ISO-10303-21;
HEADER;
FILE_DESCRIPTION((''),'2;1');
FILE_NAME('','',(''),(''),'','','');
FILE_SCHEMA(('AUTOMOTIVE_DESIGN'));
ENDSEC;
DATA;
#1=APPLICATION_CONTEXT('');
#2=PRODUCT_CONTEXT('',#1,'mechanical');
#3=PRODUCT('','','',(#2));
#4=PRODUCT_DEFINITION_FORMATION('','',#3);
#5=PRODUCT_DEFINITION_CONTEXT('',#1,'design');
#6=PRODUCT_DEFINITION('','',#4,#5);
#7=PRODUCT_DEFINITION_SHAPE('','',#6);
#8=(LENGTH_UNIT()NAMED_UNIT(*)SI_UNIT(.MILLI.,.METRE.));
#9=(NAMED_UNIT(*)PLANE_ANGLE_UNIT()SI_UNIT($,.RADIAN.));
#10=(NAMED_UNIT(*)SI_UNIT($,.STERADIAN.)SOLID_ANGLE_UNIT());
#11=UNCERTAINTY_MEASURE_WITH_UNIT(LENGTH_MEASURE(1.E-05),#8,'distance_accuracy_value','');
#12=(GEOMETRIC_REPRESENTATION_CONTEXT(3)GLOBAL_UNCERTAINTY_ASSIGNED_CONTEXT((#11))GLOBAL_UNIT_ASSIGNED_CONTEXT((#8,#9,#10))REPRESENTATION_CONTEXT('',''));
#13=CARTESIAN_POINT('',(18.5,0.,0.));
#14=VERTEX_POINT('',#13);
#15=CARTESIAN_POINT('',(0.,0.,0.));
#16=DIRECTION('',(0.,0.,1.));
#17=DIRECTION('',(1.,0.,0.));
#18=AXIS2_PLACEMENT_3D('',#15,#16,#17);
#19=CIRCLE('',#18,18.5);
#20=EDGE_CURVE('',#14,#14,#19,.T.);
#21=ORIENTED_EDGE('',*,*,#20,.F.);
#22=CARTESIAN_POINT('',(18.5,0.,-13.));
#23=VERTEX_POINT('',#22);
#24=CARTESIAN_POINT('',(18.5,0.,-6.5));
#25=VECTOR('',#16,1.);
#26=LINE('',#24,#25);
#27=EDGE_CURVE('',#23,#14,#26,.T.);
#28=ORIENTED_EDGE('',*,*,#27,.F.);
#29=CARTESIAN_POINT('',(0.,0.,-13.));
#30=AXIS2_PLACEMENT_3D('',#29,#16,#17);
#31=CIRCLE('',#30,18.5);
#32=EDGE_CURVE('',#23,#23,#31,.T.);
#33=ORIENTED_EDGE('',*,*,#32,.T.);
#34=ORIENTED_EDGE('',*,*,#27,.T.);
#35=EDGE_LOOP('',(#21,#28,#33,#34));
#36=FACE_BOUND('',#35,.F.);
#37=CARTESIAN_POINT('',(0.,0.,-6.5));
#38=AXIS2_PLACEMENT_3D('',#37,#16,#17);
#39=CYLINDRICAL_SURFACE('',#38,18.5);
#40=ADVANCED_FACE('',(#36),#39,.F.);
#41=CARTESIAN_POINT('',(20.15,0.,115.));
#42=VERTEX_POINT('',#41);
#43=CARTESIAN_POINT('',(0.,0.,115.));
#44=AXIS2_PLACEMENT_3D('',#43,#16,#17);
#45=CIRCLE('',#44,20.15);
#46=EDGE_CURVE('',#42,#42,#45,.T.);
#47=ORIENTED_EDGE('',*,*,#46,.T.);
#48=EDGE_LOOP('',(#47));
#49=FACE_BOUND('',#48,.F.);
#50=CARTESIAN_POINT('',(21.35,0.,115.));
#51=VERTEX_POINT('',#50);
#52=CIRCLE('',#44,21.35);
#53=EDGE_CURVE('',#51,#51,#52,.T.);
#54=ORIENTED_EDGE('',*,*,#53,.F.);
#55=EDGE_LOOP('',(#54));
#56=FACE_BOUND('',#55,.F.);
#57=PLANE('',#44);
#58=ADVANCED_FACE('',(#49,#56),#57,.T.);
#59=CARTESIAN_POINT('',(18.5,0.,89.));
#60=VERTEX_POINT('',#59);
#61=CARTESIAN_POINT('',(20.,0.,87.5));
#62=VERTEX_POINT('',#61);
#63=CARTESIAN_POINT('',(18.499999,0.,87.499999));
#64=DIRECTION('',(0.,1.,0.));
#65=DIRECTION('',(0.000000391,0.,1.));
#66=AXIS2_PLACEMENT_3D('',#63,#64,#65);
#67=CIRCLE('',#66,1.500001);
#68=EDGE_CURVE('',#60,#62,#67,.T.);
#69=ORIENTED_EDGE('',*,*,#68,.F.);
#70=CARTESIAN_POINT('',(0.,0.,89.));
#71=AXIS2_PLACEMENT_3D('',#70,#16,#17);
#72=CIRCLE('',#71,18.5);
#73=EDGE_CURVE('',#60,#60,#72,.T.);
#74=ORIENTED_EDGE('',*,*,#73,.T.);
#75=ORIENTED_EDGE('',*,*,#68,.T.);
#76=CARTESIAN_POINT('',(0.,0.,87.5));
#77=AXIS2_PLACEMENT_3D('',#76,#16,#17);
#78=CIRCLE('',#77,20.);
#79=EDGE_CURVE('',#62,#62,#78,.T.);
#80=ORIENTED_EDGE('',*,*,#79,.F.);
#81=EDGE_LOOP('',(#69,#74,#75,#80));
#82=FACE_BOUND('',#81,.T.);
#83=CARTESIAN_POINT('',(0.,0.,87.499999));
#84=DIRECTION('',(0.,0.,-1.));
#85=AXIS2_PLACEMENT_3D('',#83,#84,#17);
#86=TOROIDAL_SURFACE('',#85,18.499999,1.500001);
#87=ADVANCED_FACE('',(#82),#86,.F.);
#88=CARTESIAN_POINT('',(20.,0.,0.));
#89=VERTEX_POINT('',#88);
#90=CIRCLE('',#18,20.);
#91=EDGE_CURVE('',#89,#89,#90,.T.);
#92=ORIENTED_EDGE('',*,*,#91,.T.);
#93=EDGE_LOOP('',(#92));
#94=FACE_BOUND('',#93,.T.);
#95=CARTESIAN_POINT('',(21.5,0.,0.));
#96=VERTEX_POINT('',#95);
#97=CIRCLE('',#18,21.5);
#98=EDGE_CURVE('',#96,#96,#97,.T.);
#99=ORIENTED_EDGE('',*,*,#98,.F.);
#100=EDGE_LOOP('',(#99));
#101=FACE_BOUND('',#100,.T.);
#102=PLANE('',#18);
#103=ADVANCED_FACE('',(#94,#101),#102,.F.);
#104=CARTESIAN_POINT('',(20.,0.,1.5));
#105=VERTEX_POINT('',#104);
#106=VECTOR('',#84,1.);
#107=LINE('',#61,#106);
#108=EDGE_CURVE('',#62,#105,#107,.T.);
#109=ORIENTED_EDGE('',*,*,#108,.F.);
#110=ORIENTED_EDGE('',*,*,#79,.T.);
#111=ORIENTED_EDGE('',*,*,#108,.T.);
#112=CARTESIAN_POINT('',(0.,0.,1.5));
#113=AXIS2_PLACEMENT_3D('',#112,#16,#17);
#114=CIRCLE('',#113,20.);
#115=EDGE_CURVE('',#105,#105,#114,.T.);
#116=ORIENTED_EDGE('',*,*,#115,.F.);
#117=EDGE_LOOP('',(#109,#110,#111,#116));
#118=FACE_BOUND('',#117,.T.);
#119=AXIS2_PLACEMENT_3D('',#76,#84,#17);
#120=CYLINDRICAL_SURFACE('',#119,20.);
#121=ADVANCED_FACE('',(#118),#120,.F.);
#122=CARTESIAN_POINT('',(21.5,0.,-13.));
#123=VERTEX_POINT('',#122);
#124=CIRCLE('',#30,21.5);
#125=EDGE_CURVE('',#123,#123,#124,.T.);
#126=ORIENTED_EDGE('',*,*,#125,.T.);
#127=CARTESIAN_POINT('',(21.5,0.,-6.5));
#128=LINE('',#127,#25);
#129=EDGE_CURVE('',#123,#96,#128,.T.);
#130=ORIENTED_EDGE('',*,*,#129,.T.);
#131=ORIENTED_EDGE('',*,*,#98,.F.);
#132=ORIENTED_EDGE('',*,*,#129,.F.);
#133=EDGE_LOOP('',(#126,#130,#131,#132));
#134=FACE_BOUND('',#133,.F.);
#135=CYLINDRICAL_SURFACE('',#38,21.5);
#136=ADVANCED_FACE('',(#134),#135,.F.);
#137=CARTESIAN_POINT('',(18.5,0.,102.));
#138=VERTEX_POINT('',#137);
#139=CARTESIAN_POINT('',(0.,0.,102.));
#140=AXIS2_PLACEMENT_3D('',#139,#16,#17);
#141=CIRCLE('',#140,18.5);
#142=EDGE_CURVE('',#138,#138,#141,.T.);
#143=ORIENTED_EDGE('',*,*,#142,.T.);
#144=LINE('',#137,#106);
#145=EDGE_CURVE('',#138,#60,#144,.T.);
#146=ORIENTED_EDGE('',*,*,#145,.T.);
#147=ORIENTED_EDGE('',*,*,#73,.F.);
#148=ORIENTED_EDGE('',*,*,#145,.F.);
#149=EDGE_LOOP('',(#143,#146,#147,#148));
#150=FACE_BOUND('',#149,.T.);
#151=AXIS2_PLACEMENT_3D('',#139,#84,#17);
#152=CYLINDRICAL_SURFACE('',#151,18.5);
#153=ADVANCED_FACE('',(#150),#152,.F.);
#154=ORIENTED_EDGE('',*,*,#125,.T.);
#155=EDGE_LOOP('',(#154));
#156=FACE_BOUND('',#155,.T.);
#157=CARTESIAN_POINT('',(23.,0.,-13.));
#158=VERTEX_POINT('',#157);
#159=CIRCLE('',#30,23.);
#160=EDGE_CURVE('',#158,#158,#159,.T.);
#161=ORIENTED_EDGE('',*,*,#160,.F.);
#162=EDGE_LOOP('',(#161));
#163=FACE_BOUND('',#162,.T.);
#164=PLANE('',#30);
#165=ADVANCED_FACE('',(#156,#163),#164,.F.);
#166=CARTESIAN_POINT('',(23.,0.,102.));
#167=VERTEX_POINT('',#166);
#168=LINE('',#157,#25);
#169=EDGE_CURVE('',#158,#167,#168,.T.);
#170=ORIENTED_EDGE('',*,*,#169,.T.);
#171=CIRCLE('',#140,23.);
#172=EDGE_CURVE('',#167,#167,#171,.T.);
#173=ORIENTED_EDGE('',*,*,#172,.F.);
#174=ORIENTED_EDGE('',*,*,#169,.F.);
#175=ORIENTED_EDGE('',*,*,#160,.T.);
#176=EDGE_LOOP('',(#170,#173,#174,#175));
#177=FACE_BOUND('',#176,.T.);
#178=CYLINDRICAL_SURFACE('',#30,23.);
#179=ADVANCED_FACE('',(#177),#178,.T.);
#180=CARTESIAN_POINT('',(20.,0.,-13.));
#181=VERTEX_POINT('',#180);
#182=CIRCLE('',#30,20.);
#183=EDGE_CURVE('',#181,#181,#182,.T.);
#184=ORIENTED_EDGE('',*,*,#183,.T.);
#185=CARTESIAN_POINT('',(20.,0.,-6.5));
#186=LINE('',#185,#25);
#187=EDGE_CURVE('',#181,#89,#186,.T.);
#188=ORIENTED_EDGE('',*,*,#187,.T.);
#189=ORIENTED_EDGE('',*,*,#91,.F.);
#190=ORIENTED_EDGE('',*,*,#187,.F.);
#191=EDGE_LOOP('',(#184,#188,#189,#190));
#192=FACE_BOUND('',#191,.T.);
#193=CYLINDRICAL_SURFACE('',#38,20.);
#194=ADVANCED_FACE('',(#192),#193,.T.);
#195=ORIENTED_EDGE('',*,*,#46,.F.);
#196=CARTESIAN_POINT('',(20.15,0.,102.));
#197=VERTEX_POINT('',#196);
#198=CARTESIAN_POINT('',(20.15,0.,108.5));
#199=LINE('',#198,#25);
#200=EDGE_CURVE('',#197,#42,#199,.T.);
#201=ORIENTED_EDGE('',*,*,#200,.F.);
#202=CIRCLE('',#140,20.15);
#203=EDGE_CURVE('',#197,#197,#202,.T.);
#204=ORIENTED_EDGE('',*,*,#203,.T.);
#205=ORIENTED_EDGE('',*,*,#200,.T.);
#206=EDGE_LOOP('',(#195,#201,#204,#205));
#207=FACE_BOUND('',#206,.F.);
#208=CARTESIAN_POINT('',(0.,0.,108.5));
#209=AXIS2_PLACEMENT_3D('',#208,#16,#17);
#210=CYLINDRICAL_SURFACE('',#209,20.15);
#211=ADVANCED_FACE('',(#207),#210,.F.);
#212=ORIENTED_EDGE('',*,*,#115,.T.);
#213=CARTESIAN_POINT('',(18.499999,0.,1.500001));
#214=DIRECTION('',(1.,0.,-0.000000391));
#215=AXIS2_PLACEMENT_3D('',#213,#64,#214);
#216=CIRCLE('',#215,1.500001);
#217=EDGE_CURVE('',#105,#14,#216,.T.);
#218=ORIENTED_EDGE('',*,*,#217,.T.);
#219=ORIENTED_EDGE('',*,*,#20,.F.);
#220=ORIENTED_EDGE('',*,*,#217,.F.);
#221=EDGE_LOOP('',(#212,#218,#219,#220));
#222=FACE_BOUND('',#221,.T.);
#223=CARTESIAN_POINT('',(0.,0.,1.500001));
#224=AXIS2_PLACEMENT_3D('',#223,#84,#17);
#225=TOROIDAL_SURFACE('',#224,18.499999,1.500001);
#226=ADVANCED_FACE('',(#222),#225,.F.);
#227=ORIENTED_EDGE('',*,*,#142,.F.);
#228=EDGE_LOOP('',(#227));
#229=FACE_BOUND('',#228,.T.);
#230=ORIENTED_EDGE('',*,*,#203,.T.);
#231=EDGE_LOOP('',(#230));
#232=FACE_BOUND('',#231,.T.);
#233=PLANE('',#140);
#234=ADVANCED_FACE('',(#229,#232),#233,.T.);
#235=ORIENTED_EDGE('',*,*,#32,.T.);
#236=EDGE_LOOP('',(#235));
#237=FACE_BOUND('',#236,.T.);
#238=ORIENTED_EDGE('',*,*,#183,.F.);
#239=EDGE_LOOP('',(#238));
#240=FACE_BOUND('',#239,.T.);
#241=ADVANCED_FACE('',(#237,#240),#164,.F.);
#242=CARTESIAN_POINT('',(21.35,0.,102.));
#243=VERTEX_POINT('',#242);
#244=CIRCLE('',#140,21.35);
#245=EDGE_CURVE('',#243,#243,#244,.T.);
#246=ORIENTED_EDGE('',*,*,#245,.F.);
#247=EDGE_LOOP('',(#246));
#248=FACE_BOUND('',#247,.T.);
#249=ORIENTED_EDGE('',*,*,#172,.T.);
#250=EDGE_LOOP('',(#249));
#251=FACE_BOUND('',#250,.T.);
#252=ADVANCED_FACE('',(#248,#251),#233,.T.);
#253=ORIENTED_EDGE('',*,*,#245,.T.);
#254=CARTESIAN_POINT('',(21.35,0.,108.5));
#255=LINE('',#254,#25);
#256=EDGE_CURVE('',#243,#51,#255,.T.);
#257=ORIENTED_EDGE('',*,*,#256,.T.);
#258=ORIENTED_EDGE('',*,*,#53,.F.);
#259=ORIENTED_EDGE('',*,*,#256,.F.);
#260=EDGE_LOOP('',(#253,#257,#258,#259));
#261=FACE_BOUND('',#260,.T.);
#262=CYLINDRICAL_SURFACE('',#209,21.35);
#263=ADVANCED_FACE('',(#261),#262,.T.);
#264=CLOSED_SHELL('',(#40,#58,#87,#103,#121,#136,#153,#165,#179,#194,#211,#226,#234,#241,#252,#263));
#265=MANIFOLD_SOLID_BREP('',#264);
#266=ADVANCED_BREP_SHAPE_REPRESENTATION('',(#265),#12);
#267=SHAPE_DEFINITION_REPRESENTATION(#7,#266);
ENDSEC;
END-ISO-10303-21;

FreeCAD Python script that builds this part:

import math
import FreeCAD as App
import Part
import Sketcher
from FreeCAD import Vector
Q = App.Units.Quantity

doc = App.newDocument("Part")
body = doc.addObject("PartDesign::Body", "Body")

sketch1 = body.newObject("Sketcher::SketchObject", "Sketch")
sketch1.AttachmentSupport = (doc.getObject("XZ_Plane"), [""])
sketch1.MapMode = "FlatFace"
sketch1.addGeometry([
    Part.LineSegment(Vector(20, 87.5, 0), Vector(20, 1.5, 0)),
    Part.ArcOfCircle(Part.Circle(Vector(18.5, 1.5, 0), Vector(0, 0, 1), 1.5), math.radians(-90), math.radians(0)),
    Part.LineSegment(Vector(18.5, 0, 0), Vector(18.5, -13, 0)),
    Part.LineSegment(Vector(18.5, -13, 0), Vector(20, -13, 0)),
    Part.LineSegment(Vector(20, -13, 0), Vector(20, 0, 0)),
    Part.LineSegment(Vector(20, 0, 0), Vector(21.5, 0, 0)),
    Part.LineSegment(Vector(21.5, 0, 0), Vector(21.5, -13, 0)),
    Part.LineSegment(Vector(21.5, -13, 0), Vector(23, -13, 0)),
    Part.LineSegment(Vector(23, -13, 0), Vector(23, 102, 0)),
    Part.LineSegment(Vector(23, 102, 0), Vector(21.4, 102, 0)),
    Part.LineSegment(Vector(21.4, 102, 0), Vector(21.4, 115, 0)),
    Part.LineSegment(Vector(21.4, 115, 0), Vector(20.1, 115, 0)),
    Part.LineSegment(Vector(20.1, 115, 0), Vector(20.1, 102, 0)),
    Part.LineSegment(Vector(20.1, 102, 0), Vector(18.5, 102, 0)),
    Part.LineSegment(Vector(18.5, 102, 0), Vector(18.5, 89, 0)),
    Part.ArcOfCircle(Part.Circle(Vector(18.5, 87.5, 0), Vector(0, 0, 1), 1.5), math.radians(0), math.radians(90)),
], False)
sketch1.addConstraint([
    Sketcher.Constraint("Tangent", 0, 2, 1, 2),
    Sketcher.Constraint("Coincident", 1, 1, 2, 1),
    Sketcher.Constraint("Coincident", 2, 2, 3, 1),
    Sketcher.Constraint("Coincident", 3, 2, 4, 1),
    Sketcher.Constraint("Coincident", 4, 2, 5, 1),
    Sketcher.Constraint("Coincident", 5, 2, 6, 1),
    Sketcher.Constraint("Coincident", 6, 2, 7, 1),
    Sketcher.Constraint("Coincident", 7, 2, 8, 1),
    Sketcher.Constraint("Coincident", 8, 2, 9, 1),
    Sketcher.Constraint("Coincident", 9, 2, 10, 1),
    Sketcher.Constraint("Coincident", 10, 2, 11, 1),
    Sketcher.Constraint("Coincident", 11, 2, 12, 1),
    Sketcher.Constraint("Coincident", 12, 2, 13, 1),
    Sketcher.Constraint("Coincident", 13, 2, 14, 1),
    Sketcher.Constraint("Coincident", 14, 2, 15, 2),
    Sketcher.Constraint("Tangent", 15, 1, 0, 1),
    Sketcher.Constraint("Vertical", 0),
    Sketcher.Constraint("Vertical", 2),
    Sketcher.Constraint("Horizontal", 3),
    Sketcher.Constraint("Vertical", 4),
    Sketcher.Constraint("Horizontal", 5),
    Sketcher.Constraint("Vertical", 6),
    Sketcher.Constraint("Horizontal", 7),
    Sketcher.Constraint("Vertical", 8),
    Sketcher.Constraint("Horizontal", 9),
    Sketcher.Constraint("Vertical", 10),
    Sketcher.Constraint("Horizontal", 11),
    Sketcher.Constraint("Vertical", 12),
    Sketcher.Constraint("Horizontal", 13),
    Sketcher.Constraint("Vertical", 14),
    Sketcher.Constraint("Equal", 1, 15),
    Sketcher.Constraint("PointOnObject", 1, 1, -1),
    Sketcher.Constraint("PointOnObject", 4, 2, -1),
    Sketcher.Constraint("Horizontal", 3, 2, 6, 2),
    Sketcher.Constraint("Horizontal", 9, 2, 12, 2),
    Sketcher.Constraint("Vertical", 15, 3, 1, 1),
    Sketcher.Constraint("Vertical", 0, 2, 3, 2),
    Sketcher.Constraint("Vertical", 2, 2, 13, 2),
    Sketcher.Constraint("Equal", 3, 5),
    Sketcher.Constraint("Equal", 5, 7),
    Sketcher.Constraint("Equal", 9, 13),
    Sketcher.Constraint("Equal", 6, 10),
    Sketcher.Constraint("Equal", 12, 14),
    Sketcher.Constraint("Radius", 1, Q("1.500001 mm")),
    Sketcher.Constraint("DistanceY", 0, 2, 0, 1, Q("86 mm")),
    Sketcher.Constraint("DistanceY", 2, 2, 2, 1, Q("13 mm")),
    Sketcher.Constraint("DistanceX", 11, 2, 11, 1, Q("1.2 mm")),
    Sketcher.Constraint("DistanceX", -1, 1, 0, 2, Q("20 mm")),
])
revolution = body.newObject("PartDesign::Revolution", "Revolution")
revolution.Profile = sketch1
revolution.ReferenceAxis = (sketch1, ["V_Axis"])
revolution.Angle = 360

doc.recompute()
